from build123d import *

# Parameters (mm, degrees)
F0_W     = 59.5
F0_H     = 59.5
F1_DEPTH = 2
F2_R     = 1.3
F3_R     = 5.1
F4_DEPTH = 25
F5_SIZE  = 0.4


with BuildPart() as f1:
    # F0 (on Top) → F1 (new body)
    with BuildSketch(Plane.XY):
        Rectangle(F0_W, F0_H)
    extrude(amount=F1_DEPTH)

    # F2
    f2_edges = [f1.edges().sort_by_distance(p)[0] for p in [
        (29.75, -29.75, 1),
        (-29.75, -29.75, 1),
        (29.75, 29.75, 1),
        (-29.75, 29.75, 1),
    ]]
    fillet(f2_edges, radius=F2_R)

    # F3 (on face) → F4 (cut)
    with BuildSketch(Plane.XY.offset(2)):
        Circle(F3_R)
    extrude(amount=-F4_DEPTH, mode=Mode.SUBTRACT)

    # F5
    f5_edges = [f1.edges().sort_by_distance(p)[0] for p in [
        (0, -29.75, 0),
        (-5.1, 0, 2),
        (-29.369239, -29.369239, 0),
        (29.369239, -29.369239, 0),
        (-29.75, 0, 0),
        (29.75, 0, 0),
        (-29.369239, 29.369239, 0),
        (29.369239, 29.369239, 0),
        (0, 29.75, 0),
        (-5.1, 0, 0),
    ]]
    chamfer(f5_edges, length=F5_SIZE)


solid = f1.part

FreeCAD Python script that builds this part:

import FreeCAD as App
import Part
import Sketcher

V = App.Vector
Q = App.Units.Quantity


def edges_at(feature, points):
    """Names of the edges that pass closest to the given points."""
    edges = feature.Shape.Edges
    near = lambda p: min(range(len(edges)), key=lambda i: edges[i].distToShape(Part.Vertex(*p))[0])
    return sorted({f"Edge{near(p) + 1}" for p in points})

doc = App.newDocument("Part")
params = doc.addObject("Spreadsheet::Sheet", "Params")
for row, (alias, value) in enumerate([
    ("sketch1_width", "59.5 mm"),
    ("pad1_length", "2 mm"),
    ("fillet_radius", "1.3 mm"),
    ("sketch2_diameter", "10.2 mm"),
    ("pocket1_length", "25 mm"),
    ("chamfer_size", "0.4 mm"),
], start=1):
    params.set(f"A{row}", alias)
    params.set(f"B{row}", "=" + value)
    params.setAlias(f"B{row}", alias)

body = doc.addObject("PartDesign::Body", "Body")

sketch1 = body.newObject("Sketcher::SketchObject", "Sketch")
sketch1.AttachmentSupport = (doc.getObject("XY_Plane"), [""])
sketch1.MapMode = "FlatFace"
sketch1.addGeometry(Part.LineSegment(V(-29.75, 29.75, 0), V(-29.75, -29.75, 0)), False)
sketch1.addGeometry(Part.LineSegment(V(-29.75, -29.75, 0), V(29.75, -29.75, 0)), False)
sketch1.addGeometry(Part.LineSegment(V(29.75, -29.75, 0), V(29.75, 29.75, 0)), False)
sketch1.addGeometry(Part.LineSegment(V(29.75, 29.75, 0), V(-29.75, 29.75, 0)), False)
sketch1.addConstraint(Sketcher.Constraint("Coincident", 0, 2, 1, 1))
sketch1.addConstraint(Sketcher.Constraint("Coincident", 1, 2, 2, 1))
sketch1.addConstraint(Sketcher.Constraint("Coincident", 2, 2, 3, 1))
sketch1.addConstraint(Sketcher.Constraint("Coincident", 3, 2, 0, 1))
sketch1.addConstraint(Sketcher.Constraint("Vertical", 0))
sketch1.addConstraint(Sketcher.Constraint("Horizontal", 1))
sketch1.addConstraint(Sketcher.Constraint("Vertical", 2))
sketch1.addConstraint(Sketcher.Constraint("Horizontal", 3))
sketch1.addConstraint(Sketcher.Constraint("Symmetric", 0, 2, 2, 2, -1, 1))
sketch1.addConstraint(Sketcher.Constraint("Equal", 3, 0))
sketch1.addConstraint(Sketcher.Constraint("DistanceX", 1, 1, 1, 2, Q("59.5 mm")))
sketch1.setExpression("Constraints[10]", "Params.sketch1_width")
pad1 = body.newObject("PartDesign::Pad", "Pad")
pad1.Profile = sketch1
pad1.setExpression("Length", "Params.pad1_length")
doc.recompute()

fillet = body.newObject("PartDesign::Fillet", "Fillet")
fillet.Base = (pad1, edges_at(pad1, [
    (29.75, -29.75, 1),
    (-29.75, -29.75, 1),
    (29.75, 29.75, 1),
    (-29.75, 29.75, 1),
]))
fillet.setExpression("Radius", "Params.fillet_radius")

sketch2 = body.newObject("Sketcher::SketchObject", "Sketch001")
sketch2.AttachmentSupport = (doc.getObject("XY_Plane"), [""])
sketch2.MapMode = "FlatFace"
sketch2.AttachmentOffset = App.Placement(V(0, 0, 2), App.Rotation())
sketch2.addGeometry(Part.Circle(V(0, 0, 0), V(0, 0, 1), 5.1), False)
sketch2.addConstraint(Sketcher.Constraint("Coincident", 0, 3, -1, 1))
sketch2.addConstraint(Sketcher.Constraint("Diameter", 0, Q("10.2 mm")))
sketch2.setExpression("Constraints[1]", "Params.sketch2_diameter")
pocket1 = body.newObject("PartDesign::Pocket", "Pocket")
pocket1.Profile = sketch2
pocket1.setExpression("Length", "Params.pocket1_length")
doc.recompute()

chamfer = body.newObject("PartDesign::Chamfer", "Chamfer")
chamfer.Base = (pocket1, edges_at(pocket1, [
    (0, -29.75, 0),
    (-5.1, 0, 2),
    (-29.369, -29.369, 0),
    (29.369, -29.369, 0),
    (-29.75, 0, 0),
    (29.75, 0, 0),
    (-29.369, 29.369, 0),
    (29.369, 29.369, 0),
    (0, 29.75, 0),
    (-5.1, 0, 0),
]))
chamfer.setExpression("Size", "Params.chamfer_size")

doc.recompute()
